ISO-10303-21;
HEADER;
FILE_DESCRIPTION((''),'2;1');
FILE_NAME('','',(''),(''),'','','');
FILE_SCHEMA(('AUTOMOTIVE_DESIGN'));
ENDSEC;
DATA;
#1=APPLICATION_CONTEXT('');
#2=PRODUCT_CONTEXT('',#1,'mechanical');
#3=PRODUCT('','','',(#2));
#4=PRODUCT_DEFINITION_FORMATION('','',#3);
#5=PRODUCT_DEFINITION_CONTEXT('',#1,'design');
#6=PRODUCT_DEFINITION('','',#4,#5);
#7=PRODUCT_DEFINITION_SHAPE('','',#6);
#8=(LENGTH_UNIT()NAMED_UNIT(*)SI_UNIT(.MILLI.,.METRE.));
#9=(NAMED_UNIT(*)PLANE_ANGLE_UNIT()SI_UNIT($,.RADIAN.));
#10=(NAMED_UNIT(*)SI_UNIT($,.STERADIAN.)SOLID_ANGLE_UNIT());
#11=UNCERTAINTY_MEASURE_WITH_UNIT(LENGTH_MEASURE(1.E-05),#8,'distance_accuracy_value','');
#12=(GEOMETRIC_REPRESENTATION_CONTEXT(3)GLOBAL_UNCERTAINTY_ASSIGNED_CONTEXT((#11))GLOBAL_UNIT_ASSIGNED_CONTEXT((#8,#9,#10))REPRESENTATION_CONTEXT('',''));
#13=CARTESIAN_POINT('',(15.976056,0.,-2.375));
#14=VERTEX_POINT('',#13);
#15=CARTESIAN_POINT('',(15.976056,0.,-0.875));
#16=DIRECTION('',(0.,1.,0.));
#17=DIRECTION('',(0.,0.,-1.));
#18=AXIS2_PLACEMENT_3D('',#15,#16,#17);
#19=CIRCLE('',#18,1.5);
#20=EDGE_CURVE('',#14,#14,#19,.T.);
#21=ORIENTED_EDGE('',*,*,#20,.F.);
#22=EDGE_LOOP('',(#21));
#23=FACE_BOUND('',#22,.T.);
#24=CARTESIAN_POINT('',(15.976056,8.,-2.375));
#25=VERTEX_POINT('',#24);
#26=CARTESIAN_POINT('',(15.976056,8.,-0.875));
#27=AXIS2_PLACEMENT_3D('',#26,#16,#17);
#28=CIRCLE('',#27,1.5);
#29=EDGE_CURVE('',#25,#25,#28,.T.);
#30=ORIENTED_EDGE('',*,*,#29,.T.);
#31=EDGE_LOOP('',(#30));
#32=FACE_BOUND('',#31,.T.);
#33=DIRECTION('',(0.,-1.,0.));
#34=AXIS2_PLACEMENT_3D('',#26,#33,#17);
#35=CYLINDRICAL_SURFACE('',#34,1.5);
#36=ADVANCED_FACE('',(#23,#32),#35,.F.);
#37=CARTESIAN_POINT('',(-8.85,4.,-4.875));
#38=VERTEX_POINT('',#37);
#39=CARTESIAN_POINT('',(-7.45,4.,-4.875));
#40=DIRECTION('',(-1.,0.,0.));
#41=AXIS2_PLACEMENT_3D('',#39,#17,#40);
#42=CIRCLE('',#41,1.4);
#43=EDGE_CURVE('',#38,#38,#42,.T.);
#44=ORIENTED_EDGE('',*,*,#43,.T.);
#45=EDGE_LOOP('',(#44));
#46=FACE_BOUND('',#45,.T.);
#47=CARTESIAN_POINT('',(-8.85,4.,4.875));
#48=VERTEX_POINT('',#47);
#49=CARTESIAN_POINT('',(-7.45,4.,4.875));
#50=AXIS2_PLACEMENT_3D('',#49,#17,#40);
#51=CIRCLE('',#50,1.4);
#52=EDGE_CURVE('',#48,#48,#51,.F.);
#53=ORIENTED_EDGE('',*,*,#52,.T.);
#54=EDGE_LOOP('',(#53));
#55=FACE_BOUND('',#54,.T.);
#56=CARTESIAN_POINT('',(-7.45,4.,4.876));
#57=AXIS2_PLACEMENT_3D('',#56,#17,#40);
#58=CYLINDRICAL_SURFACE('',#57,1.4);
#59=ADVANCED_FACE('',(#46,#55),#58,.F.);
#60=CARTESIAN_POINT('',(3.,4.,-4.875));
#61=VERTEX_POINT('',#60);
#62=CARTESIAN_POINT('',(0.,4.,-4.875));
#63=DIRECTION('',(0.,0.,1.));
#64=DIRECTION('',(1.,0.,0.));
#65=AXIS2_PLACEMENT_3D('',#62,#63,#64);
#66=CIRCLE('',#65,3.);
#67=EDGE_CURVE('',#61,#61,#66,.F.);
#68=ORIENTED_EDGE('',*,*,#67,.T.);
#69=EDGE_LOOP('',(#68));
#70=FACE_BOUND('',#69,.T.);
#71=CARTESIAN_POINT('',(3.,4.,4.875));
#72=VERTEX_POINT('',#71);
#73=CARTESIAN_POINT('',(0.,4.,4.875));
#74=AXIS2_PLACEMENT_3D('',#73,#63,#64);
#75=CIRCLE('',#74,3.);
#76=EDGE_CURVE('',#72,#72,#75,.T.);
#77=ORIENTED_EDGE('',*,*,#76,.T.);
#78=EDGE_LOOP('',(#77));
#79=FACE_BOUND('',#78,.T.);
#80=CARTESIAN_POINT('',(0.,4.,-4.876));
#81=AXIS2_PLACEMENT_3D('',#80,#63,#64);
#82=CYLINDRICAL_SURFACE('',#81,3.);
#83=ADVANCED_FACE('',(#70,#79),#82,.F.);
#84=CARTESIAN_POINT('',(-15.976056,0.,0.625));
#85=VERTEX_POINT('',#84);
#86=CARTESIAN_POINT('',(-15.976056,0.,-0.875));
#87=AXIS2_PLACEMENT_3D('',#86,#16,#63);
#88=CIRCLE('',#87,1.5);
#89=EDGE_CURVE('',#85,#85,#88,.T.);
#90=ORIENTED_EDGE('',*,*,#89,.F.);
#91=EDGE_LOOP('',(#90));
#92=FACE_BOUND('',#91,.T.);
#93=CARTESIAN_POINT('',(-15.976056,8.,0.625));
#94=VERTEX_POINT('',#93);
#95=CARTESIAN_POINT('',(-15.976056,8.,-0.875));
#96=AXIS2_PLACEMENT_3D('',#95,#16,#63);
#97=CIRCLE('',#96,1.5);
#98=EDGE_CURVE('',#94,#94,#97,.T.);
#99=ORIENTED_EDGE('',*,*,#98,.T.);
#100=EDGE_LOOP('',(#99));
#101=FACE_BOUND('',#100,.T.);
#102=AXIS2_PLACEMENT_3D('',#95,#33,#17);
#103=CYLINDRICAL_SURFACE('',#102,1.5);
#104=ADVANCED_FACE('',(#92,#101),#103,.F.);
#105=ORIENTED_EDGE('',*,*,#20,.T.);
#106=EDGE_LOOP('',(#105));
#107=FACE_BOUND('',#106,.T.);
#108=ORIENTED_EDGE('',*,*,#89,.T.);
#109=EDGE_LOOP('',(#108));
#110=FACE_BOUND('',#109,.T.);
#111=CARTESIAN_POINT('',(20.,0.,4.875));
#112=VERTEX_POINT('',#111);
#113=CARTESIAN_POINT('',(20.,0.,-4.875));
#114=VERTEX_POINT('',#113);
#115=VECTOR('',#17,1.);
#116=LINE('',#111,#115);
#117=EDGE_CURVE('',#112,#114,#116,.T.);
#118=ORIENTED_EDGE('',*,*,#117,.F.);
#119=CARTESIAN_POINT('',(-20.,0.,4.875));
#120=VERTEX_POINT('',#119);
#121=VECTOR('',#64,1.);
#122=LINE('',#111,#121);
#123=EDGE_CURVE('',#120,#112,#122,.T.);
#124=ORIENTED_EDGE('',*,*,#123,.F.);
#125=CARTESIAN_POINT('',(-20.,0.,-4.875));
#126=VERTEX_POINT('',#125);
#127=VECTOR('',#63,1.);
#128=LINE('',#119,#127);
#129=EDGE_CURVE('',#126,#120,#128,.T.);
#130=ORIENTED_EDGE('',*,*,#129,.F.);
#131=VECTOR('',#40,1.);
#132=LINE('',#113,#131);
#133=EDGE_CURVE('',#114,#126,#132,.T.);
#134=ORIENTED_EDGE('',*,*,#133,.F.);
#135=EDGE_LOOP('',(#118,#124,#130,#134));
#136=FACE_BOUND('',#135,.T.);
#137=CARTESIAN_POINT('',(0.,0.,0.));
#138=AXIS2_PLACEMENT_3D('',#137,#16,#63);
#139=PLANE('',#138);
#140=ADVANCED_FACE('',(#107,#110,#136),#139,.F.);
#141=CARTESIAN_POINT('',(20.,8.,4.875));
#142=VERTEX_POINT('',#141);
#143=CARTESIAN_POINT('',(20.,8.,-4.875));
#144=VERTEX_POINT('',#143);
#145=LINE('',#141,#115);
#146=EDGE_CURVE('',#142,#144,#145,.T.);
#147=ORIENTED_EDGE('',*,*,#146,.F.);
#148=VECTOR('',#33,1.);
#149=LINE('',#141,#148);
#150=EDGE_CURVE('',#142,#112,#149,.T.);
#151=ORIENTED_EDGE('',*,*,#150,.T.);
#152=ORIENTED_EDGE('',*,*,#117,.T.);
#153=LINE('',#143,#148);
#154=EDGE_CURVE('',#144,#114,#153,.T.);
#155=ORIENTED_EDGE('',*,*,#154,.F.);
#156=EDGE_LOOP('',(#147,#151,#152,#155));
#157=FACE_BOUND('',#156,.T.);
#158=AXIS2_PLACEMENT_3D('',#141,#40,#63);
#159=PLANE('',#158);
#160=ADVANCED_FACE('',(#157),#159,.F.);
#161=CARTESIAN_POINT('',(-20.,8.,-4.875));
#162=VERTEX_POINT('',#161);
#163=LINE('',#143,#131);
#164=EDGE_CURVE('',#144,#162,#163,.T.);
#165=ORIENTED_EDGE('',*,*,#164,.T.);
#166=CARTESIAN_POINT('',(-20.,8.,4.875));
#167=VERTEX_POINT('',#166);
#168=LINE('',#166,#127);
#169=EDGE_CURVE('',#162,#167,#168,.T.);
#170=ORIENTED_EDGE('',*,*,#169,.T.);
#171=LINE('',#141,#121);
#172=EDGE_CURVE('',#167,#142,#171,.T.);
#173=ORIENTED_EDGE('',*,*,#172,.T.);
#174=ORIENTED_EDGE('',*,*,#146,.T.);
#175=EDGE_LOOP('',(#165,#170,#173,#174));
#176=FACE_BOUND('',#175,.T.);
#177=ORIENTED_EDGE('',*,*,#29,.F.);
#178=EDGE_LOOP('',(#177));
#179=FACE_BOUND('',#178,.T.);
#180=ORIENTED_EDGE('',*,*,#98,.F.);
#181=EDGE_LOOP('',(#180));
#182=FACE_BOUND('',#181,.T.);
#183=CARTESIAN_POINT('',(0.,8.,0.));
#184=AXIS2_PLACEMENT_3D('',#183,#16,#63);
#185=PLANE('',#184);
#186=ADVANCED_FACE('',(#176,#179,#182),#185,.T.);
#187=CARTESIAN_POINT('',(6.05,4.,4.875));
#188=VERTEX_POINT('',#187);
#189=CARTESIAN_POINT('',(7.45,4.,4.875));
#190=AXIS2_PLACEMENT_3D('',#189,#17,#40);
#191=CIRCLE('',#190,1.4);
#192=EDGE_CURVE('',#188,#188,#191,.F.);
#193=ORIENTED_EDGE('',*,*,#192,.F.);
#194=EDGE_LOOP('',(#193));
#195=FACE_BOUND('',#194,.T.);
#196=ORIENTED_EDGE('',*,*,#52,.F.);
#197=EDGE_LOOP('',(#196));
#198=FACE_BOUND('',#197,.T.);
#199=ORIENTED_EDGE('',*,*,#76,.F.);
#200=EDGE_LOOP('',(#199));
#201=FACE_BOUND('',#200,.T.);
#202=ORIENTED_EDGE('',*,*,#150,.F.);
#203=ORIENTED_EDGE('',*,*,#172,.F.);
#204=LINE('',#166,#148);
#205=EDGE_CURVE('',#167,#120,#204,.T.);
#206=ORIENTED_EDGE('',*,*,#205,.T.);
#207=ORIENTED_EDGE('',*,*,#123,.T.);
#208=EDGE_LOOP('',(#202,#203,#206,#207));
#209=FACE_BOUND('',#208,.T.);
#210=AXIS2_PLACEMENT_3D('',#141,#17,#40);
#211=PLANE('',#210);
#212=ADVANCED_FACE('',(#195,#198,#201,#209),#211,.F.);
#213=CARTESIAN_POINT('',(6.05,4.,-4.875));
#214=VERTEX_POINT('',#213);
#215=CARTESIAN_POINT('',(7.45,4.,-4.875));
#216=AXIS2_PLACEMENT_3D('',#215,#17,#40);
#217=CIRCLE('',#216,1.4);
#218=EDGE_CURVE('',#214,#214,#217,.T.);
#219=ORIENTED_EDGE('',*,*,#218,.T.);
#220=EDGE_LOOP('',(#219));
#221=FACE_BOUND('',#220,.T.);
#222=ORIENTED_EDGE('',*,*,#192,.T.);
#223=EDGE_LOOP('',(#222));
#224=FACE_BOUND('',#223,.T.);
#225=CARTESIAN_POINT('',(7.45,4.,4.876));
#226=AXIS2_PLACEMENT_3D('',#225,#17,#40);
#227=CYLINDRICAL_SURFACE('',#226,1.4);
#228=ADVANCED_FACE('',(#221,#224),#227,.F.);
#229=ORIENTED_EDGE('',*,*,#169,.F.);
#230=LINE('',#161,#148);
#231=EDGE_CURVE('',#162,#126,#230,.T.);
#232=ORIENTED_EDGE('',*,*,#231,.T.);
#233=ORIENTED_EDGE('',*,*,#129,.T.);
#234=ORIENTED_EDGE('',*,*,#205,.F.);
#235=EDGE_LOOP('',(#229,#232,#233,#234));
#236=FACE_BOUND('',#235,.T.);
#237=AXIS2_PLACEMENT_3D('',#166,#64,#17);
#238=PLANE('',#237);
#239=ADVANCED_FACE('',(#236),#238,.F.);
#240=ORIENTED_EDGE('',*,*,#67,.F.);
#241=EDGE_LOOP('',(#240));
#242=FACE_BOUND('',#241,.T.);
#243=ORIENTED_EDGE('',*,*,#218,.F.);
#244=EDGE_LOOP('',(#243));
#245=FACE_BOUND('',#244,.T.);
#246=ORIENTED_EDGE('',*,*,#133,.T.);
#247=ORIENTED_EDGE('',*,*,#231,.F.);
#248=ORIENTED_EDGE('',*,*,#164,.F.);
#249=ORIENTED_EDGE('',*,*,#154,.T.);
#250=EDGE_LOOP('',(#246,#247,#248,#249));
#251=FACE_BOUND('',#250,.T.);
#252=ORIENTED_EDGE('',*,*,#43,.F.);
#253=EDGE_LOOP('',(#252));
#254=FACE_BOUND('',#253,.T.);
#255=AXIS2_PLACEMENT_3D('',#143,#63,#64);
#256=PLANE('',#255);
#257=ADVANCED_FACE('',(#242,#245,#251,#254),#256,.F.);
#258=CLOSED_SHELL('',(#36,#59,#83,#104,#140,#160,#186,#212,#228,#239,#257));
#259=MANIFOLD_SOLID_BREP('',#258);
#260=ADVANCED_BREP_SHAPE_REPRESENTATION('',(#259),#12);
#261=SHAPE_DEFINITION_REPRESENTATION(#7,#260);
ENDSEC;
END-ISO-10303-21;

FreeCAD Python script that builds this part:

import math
import FreeCAD as App
import Part
import Sketcher
from FreeCAD import Vector


def add_polygon(sketch, points):
    """Adds a closed chain of lines whose ends are joined by coincident constraints."""
    first, n = sketch.GeometryCount, len(points)
    for a, b in zip(points, points[1:] + points[:1]):
        sketch.addGeometry(Part.LineSegment(App.Vector(*a, 0), App.Vector(*b, 0)), False)
    for i in range(n):
        sketch.addConstraint(Sketcher.Constraint("Coincident", first + i, 2, first + (i + 1) % n, 1))

doc = App.newDocument("Part")
body = doc.addObject("PartDesign::Body", "Body")

sketch1 = body.newObject("Sketcher::SketchObject", "Sketch")
sketch1.AttachmentSupport = (doc.getObject("XZ_Plane"), [""])
sketch1.MapMode = "FlatFace"
add_polygon(sketch1, [(-20, -4.875), (-20, 4.875), (20, 4.875), (20, -4.875)])
sketch1.addGeometry(Part.Circle(Vector(-15.976056, -0.875, 0), Vector(0, 0, 1), 1.5), False)
sketch1.addGeometry(Part.Circle(Vector(15.976056, -0.875, 0), Vector(0, 0, 1), 1.5), False)
sketch1.addConstraint([
    Sketcher.Constraint("Vertical", 0),
    Sketcher.Constraint("Horizontal", 1),
    Sketcher.Constraint("Vertical", 2),
    Sketcher.Constraint("Horizontal", 3),
    Sketcher.Constraint("Equal", 4, 5),
    Sketcher.Constraint("Symmetric", 0, 2, 2, 2, -1, 1),
    Sketcher.Constraint("Symmetric", 4, 3, 5, 3, -2),
    Sketcher.Constraint("Diameter", 4, 3.0),
    Sketcher.Constraint("DistanceX", 1, 1, 1, 2, 40.0),
    Sketcher.Constraint("DistanceY", 2, 2, 5, 3, 4.0),
    Sketcher.Constraint("DistanceY", 0, 1, 0, 2, 9.75),
    Sketcher.Constraint("DistanceX", 4, 3, -1, 1, 15.976056),
])
pad1 = body.newObject("PartDesign::Pad", "Pad")
pad1.Profile = sketch1
pad1.Length = 8
pad1.Reversed = True

sketch2 = body.newObject("Sketcher::SketchObject", "Sketch001")
sketch2.AttachmentSupport = (doc.getObject("XY_Plane"), [""])
sketch2.MapMode = "FlatFace"
sketch2.AttachmentOffset = App.Placement(Vector(0, 0, 4.875), App.Rotation())
sketch2.addGeometry([
    Part.ArcOfCircle(Part.Circle(Vector(0, 4, 0), Vector(0, 0, 1), 3), math.radians(0), math.radians(90)),
    Part.LineSegment(Vector(0, 7, 0), Vector(0, 1, 0)),
    Part.ArcOfCircle(Part.Circle(Vector(0, 4, 0), Vector(0, 0, 1), 3), math.radians(-90), math.radians(0)),
], False)
sketch2.addConstraint([
    Sketcher.Constraint("Coincident", 0, 2, 1, 1),
    Sketcher.Constraint("Coincident", 1, 2, 2, 1),
    Sketcher.Constraint("Tangent", 2, 2, 0, 1),
    Sketcher.Constraint("Vertical", 1),
    Sketcher.Constraint("Equal", 0, 2),
    Sketcher.Constraint("PointOnObject", 0, 3, -2),
    Sketcher.Constraint("PointOnObject", 0, 2, -2),
    Sketcher.Constraint("Horizontal", 0, 3, 2, 2),
    Sketcher.Constraint("Radius", 0, 3.0),
    Sketcher.Constraint("DistanceY", -1, 1, 0, 3, 4.0),
])
pocket1 = body.newObject("PartDesign::Pocket", "Pocket")
pocket1.Profile = sketch2
pocket1.Type = "UpToFirst"

sketch3 = body.newObject("Sketcher::SketchObject", "Sketch002")
sketch3.AttachmentSupport = (doc.getObject("XY_Plane"), [""])
sketch3.MapMode = "FlatFace"
sketch3.AttachmentOffset = App.Placement(Vector(0, 0, 4.875), App.Rotation())
sketch3.addGeometry([
    Part.LineSegment(Vector(0, 1, 0), Vector(0, 7, 0)),
    Part.ArcOfCircle(Part.Circle(Vector(0, 4, 0), Vector(0, 0, 1), 3), math.radians(90), math.radians(270)),
], False)
sketch3.addConstraint([
    Sketcher.Constraint("Coincident", 0, 1, 1, 2),
    Sketcher.Constraint("Coincident", 1, 1, 0, 2),
    Sketcher.Constraint("Vertical", 0),
    Sketcher.Constraint("PointOnObject", 1, 3, -2),
    Sketcher.Constraint("PointOnObject", 0, 1, -2),
    Sketcher.Constraint("Radius", 1, 3.0),
    Sketcher.Constraint("DistanceY", -1, 1, 1, 3, 4.0),
])
pocket2 = body.newObject("PartDesign::Pocket", "Pocket001")
pocket2.Profile = sketch3
pocket2.Type = "UpToFirst"

sketch4 = body.newObject("Sketcher::SketchObject", "Sketch003")
sketch4.AttachmentSupport = (doc.getObject("XY_Plane"), [""])
sketch4.MapMode = "FlatFace"
sketch4.AttachmentOffset = App.Placement(Vector(0, 0, 4.875), App.Rotation())
sketch4.addGeometry([
    Part.ArcOfCircle(Part.Circle(Vector(0, 4, 0), Vector(0, 0, 1), 3), math.radians(0), math.radians(90)),
    Part.LineSegment(Vector(0, 7, 0), Vector(0, 1, 0)),
    Part.ArcOfCircle(Part.Circle(Vector(0, 4, 0), Vector(0, 0, 1), 3), math.radians(-90), math.radians(0)),
], False)
sketch4.addConstraint([
    Sketcher.Constraint("Coincident", 0, 2, 1, 1),
    Sketcher.Constraint("Coincident", 1, 2, 2, 1),
    Sketcher.Constraint("Tangent", 2, 2, 0, 1),
    Sketcher.Constraint("Vertical", 1),
    Sketcher.Constraint("Equal", 0, 2),
    Sketcher.Constraint("PointOnObject", 0, 3, -2),
    Sketcher.Constraint("PointOnObject", 0, 2, -2),
    Sketcher.Constraint("Horizontal", 0, 3, 2, 2),
    Sketcher.Constraint("Radius", 0, 3.0),
    Sketcher.Constraint("DistanceY", -1, 1, 0, 3, 4.0),
])
pocket3 = body.newObject("PartDesign::Pocket", "Pocket002")
pocket3.Profile = sketch4
pocket3.Length = 9.75

sketch5 = body.newObject("Sketcher::SketchObject", "Sketch004")
sketch5.AttachmentSupport = (doc.getObject("XY_Plane"), [""])
sketch5.MapMode = "FlatFace"
sketch5.AttachmentOffset = App.Placement(Vector(0, 0, 4.875), App.Rotation())
sketch5.addGeometry([
    Part.LineSegment(Vector(0, 1, 0), Vector(0, 7, 0)),
    Part.ArcOfCircle(Part.Circle(Vector(0, 4, 0), Vector(0, 0, 1), 3), math.radians(90), math.radians(270)),
], False)
sketch5.addConstraint([
    Sketcher.Constraint("Coincident", 0, 1, 1, 2),
    Sketcher.Constraint("Coincident", 1, 1, 0, 2),
    Sketcher.Constraint("Vertical", 0),
    Sketcher.Constraint("PointOnObject", 1, 3, -2),
    Sketcher.Constraint("PointOnObject", 0, 1, -2),
    Sketcher.Constraint("Radius", 1, 3.0),
    Sketcher.Constraint("DistanceY", -1, 1, 1, 3, 4.0),
])
pocket4 = body.newObject("PartDesign::Pocket", "Pocket003")
pocket4.Profile = sketch5
pocket4.Length = 9.75

sketch6 = body.newObject("Sketcher::SketchObject", "Sketch005")
sketch6.AttachmentSupport = (doc.getObject("XY_Plane"), [""])
sketch6.MapMode = "FlatFace"
sketch6.AttachmentOffset = App.Placement(Vector(0, 0, -4.875), App.Rotation())
sketch6.addGeometry(Part.Circle(Vector(-7.45, 4, 0), Vector(0, 0, 1), 1.4), False)
sketch6.addConstraint([
    Sketcher.Constraint("Diameter", 0, 2.8),
    Sketcher.Constraint("DistanceY", -1, 1, 0, 3, 4.0),
    Sketcher.Constraint("DistanceX", 0, 3, -1, 1, 7.45),
])
pocket5 = body.newObject("PartDesign::Pocket", "Pocket004")
pocket5.Profile = sketch6
pocket5.Type = "UpToFirst"
pocket5.Reversed = True

sketch7 = body.newObject("Sketcher::SketchObject", "Sketch006")
sketch7.AttachmentSupport = (doc.getObject("XY_Plane"), [""])
sketch7.MapMode = "FlatFace"
sketch7.AttachmentOffset = App.Placement(Vector(0, 0, -4.875), App.Rotation())
sketch7.addGeometry(Part.Circle(Vector(7.45, 4, 0), Vector(0, 0, 1), 1.4), False)
sketch7.addConstraint([
    Sketcher.Constraint("Diameter", 0, 2.8),
    Sketcher.Constraint("DistanceY", -1, 1, 0, 3, 4.0),
    Sketcher.Constraint("DistanceX", -1, 1, 0, 3, 7.45),
])
pocket6 = body.newObject("PartDesign::Pocket", "Pocket005")
pocket6.Profile = sketch7
pocket6.Type = "UpToFirst"
pocket6.Reversed = True

doc.recompute()
